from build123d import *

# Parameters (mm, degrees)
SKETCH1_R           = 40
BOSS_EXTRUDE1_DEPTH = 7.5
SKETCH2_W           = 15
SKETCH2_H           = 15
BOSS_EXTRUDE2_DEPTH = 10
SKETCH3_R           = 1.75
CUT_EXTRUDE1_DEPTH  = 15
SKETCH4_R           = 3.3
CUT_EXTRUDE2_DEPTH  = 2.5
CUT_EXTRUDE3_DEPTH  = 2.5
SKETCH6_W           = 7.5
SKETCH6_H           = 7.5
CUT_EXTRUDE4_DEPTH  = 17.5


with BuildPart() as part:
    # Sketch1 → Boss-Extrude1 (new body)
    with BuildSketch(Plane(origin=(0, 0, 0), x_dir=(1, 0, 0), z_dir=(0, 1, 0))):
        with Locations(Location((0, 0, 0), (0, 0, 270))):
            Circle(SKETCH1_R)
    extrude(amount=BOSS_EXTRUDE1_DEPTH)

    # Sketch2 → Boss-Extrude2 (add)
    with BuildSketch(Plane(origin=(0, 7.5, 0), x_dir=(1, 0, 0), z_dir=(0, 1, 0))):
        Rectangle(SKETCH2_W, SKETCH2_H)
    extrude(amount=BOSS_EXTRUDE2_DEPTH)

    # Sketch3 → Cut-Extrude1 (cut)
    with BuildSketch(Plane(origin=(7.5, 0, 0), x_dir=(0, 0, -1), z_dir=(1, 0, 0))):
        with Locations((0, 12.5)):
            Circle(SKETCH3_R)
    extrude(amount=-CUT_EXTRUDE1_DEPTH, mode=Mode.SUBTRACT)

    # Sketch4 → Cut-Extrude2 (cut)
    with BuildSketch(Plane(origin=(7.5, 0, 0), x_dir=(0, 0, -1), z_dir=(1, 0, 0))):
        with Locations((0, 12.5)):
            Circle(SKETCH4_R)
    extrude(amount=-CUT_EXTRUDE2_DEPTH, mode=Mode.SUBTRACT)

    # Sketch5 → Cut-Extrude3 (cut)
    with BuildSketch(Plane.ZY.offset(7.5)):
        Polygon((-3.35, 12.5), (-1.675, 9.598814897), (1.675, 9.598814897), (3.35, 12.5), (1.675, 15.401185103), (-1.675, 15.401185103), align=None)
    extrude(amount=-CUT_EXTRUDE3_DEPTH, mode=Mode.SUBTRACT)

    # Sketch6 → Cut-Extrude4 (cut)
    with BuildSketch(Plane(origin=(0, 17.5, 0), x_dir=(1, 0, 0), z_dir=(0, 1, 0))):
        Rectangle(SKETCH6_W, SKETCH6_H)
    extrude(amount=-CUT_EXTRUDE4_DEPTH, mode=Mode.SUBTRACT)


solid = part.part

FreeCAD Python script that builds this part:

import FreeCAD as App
import Part
import Sketcher
Q = App.Units.Quantity

doc = App.newDocument("Part")
body = doc.addObject("PartDesign::Body", "Body")

# Sketch on XZ plane
sketch1 = body.newObject("Sketcher::SketchObject", "Sketch")
sketch1.AttachmentSupport = (doc.getObject("XZ_Plane"), [""])
sketch1.MapMode = "FlatFace"
sketch1.addGeometry(Part.Circle(App.Vector(0, 0, 0), App.Vector(0, 0, 1), 40), False)
sketch1.addConstraint([
    Sketcher.Constraint("Coincident", 0, 3, -1, 1),
    Sketcher.Constraint("Diameter", 0, 80.0),
])
pad1 = body.newObject("PartDesign::Pad", "Pad")
pad1.Profile = sketch1
pad1.Length = 7.5
pad1.Reversed = True

# Sketch on XZ plane
sketch2 = body.newObject("Sketcher::SketchObject", "Sketch001")
sketch2.AttachmentSupport = (doc.getObject("XZ_Plane"), [""])
sketch2.MapMode = "FlatFace"
sketch2.AttachmentOffset = App.Placement(App.Vector(0, 0, -7.5), App.Rotation())
sketch2.addGeometry([
    Part.LineSegment(App.Vector(-8, -8, 0), App.Vector(-8, 8, 0)),
    Part.LineSegment(App.Vector(-8, 8, 0), App.Vector(8, 8, 0)),
    Part.LineSegment(App.Vector(8, 8, 0), App.Vector(8, -8, 0)),
    Part.LineSegment(App.Vector(8, -8, 0), App.Vector(-8, -8, 0)),
], False)
sketch2.addConstraint([
    Sketcher.Constraint("Coincident", 0, 2, 1, 1),
    Sketcher.Constraint("Coincident", 1, 2, 2, 1),
    Sketcher.Constraint("Coincident", 2, 2, 3, 1),
    Sketcher.Constraint("Coincident", 3, 2, 0, 1),
    Sketcher.Constraint("Vertical", 0),
    Sketcher.Constraint("Horizontal", 1),
    Sketcher.Constraint("Vertical", 2),
    Sketcher.Constraint("Horizontal", 3),
    Sketcher.Constraint("Symmetric", 0, 2, 2, 2, -1, 1),
    Sketcher.Constraint("Equal", 3, 0),
    Sketcher.Constraint("DistanceX", 1, 1, 1, 2, 15.0),
])
pad2 = body.newObject("PartDesign::Pad", "Pad001")
pad2.Profile = sketch2
pad2.Length = 10
pad2.Reversed = True

# Sketch on YZ plane
sketch3 = body.newObject("Sketcher::SketchObject", "Sketch002")
sketch3.AttachmentSupport = (doc.getObject("YZ_Plane"), [""])
sketch3.MapMode = "FlatFace"
sketch3.AttachmentOffset = App.Placement(App.Vector(0, 0, 7.5), App.Rotation())
sketch3.addGeometry(Part.Circle(App.Vector(12.5, 0, 0), App.Vector(0, 0, 1), 1.8), False)
sketch3.addConstraint([
    Sketcher.Constraint("PointOnObject", 0, 3, -1),
    Sketcher.Constraint("Diameter", 0, 3.5),
    Sketcher.Constraint("DistanceX", -1, 1, 0, 3, 12.5),
])
pocket1 = body.newObject("PartDesign::Pocket", "Pocket")
pocket1.Profile = sketch3
pocket1.Length = 15

# Sketch on YZ plane
sketch4 = body.newObject("Sketcher::SketchObject", "Sketch003")
sketch4.AttachmentSupport = (doc.getObject("YZ_Plane"), [""])
sketch4.MapMode = "FlatFace"
sketch4.AttachmentOffset = App.Placement(App.Vector(0, 0, 7.5), App.Rotation())
sketch4.addGeometry(Part.Circle(App.Vector(12.5, 0, 0), App.Vector(0, 0, 1), 3.3), False)
sketch4.addConstraint([
    Sketcher.Constraint("PointOnObject", 0, 3, -1),
    Sketcher.Constraint("Diameter", 0, 6.6),
    Sketcher.Constraint("DistanceX", -1, 1, 0, 3, 12.5),
])
pocket2 = body.newObject("PartDesign::Pocket", "Pocket001")
pocket2.Profile = sketch4
pocket2.Length = 2.5

# Sketch on YZ plane
sketch5 = body.newObject("Sketcher::SketchObject", "Sketch004")
sketch5.AttachmentSupport = (doc.getObject("YZ_Plane"), [""])
sketch5.MapMode = "FlatFace"
sketch5.AttachmentOffset = App.Placement(App.Vector(0, 0, -7.5), App.Rotation())
sketch5.addGeometry([
    Part.LineSegment(App.Vector(12.5, -3.4, 0), App.Vector(9.6, -1.7, 0)),  # 0
    Part.LineSegment(App.Vector(9.6, -1.7, 0), App.Vector(9.6, 1.7, 0)),  # 1
    Part.LineSegment(App.Vector(9.6, 1.7, 0), App.Vector(12.5, 3.4, 0)),  # 2
    Part.LineSegment(App.Vector(12.5, 3.4, 0), App.Vector(15.4, 1.7, 0)),  # 3
    Part.LineSegment(App.Vector(15.4, 1.7, 0), App.Vector(15.4, -1.7, 0)),  # 4
    Part.LineSegment(App.Vector(15.4, -1.7, 0), App.Vector(12.5, -3.4, 0)),  # 5
], False)
sketch5.addConstraint([
    Sketcher.Constraint("Coincident", 0, 2, 1, 1),
    Sketcher.Constraint("Coincident", 1, 2, 2, 1),
    Sketcher.Constraint("Coincident", 2, 2, 3, 1),
    Sketcher.Constraint("Coincident", 3, 2, 4, 1),
    Sketcher.Constraint("Coincident", 4, 2, 5, 1),
    Sketcher.Constraint("Coincident", 5, 2, 0, 1),
    Sketcher.Constraint("Vertical", 1),
    Sketcher.Constraint("Vertical", 4),
    Sketcher.Constraint("Symmetric", 2, 2, 5, 2, -1),
    Sketcher.Constraint("Parallel", 0, 3),
    Sketcher.Constraint("Parallel", 2, 5),
    Sketcher.Constraint("Horizontal", 1, 2, 3, 2),
    Sketcher.Constraint("Horizontal", 0, 2, 4, 2),
    Sketcher.Constraint("Angle", 0, Q("150 deg")),
    Sketcher.Constraint("DistanceY", 1, 1, 1, 2, 3.35),
    Sketcher.Constraint("DistanceX", -1, 1, 2, 2, 12.5),
    Sketcher.Constraint("DistanceY", 5, 2, 2, 2, 6.7),
])
pocket3 = body.newObject("PartDesign::Pocket", "Pocket002")
pocket3.Profile = sketch5
pocket3.Length = 2.5
pocket3.Reversed = True

# Sketch on XZ plane
sketch6 = body.newObject("Sketcher::SketchObject", "Sketch005")
sketch6.AttachmentSupport = (doc.getObject("XZ_Plane"), [""])
sketch6.MapMode = "FlatFace"
sketch6.AttachmentOffset = App.Placement(App.Vector(0, 0, -17.5), App.Rotation())
sketch6.addGeometry([
    Part.LineSegment(App.Vector(-4, -4, 0), App.Vector(-4, 4, 0)),
    Part.LineSegment(App.Vector(-4, 4, 0), App.Vector(4, 4, 0)),
    Part.LineSegment(App.Vector(4, 4, 0), App.Vector(4, -4, 0)),
    Part.LineSegment(App.Vector(4, -4, 0), App.Vector(-4, -4, 0)),
], False)
sketch6.addConstraint([
    Sketcher.Constraint("Coincident", 0, 2, 1, 1),
    Sketcher.Constraint("Coincident", 1, 2, 2, 1),
    Sketcher.Constraint("Coincident", 2, 2, 3, 1),
    Sketcher.Constraint("Coincident", 3, 2, 0, 1),
    Sketcher.Constraint("Vertical", 0),
    Sketcher.Constraint("Horizontal", 1),
    Sketcher.Constraint("Vertical", 2),
    Sketcher.Constraint("Horizontal", 3),
    Sketcher.Constraint("Symmetric", 0, 2, 2, 2, -1, 1),
    Sketcher.Constraint("Equal", 3, 0),
    Sketcher.Constraint("DistanceX", 1, 1, 1, 2, 7.5),
])
pocket4 = body.newObject("PartDesign::Pocket", "Pocket003")
pocket4.Profile = sketch6
pocket4.Length = 17.5
pocket4.Reversed = True

doc.recompute()
